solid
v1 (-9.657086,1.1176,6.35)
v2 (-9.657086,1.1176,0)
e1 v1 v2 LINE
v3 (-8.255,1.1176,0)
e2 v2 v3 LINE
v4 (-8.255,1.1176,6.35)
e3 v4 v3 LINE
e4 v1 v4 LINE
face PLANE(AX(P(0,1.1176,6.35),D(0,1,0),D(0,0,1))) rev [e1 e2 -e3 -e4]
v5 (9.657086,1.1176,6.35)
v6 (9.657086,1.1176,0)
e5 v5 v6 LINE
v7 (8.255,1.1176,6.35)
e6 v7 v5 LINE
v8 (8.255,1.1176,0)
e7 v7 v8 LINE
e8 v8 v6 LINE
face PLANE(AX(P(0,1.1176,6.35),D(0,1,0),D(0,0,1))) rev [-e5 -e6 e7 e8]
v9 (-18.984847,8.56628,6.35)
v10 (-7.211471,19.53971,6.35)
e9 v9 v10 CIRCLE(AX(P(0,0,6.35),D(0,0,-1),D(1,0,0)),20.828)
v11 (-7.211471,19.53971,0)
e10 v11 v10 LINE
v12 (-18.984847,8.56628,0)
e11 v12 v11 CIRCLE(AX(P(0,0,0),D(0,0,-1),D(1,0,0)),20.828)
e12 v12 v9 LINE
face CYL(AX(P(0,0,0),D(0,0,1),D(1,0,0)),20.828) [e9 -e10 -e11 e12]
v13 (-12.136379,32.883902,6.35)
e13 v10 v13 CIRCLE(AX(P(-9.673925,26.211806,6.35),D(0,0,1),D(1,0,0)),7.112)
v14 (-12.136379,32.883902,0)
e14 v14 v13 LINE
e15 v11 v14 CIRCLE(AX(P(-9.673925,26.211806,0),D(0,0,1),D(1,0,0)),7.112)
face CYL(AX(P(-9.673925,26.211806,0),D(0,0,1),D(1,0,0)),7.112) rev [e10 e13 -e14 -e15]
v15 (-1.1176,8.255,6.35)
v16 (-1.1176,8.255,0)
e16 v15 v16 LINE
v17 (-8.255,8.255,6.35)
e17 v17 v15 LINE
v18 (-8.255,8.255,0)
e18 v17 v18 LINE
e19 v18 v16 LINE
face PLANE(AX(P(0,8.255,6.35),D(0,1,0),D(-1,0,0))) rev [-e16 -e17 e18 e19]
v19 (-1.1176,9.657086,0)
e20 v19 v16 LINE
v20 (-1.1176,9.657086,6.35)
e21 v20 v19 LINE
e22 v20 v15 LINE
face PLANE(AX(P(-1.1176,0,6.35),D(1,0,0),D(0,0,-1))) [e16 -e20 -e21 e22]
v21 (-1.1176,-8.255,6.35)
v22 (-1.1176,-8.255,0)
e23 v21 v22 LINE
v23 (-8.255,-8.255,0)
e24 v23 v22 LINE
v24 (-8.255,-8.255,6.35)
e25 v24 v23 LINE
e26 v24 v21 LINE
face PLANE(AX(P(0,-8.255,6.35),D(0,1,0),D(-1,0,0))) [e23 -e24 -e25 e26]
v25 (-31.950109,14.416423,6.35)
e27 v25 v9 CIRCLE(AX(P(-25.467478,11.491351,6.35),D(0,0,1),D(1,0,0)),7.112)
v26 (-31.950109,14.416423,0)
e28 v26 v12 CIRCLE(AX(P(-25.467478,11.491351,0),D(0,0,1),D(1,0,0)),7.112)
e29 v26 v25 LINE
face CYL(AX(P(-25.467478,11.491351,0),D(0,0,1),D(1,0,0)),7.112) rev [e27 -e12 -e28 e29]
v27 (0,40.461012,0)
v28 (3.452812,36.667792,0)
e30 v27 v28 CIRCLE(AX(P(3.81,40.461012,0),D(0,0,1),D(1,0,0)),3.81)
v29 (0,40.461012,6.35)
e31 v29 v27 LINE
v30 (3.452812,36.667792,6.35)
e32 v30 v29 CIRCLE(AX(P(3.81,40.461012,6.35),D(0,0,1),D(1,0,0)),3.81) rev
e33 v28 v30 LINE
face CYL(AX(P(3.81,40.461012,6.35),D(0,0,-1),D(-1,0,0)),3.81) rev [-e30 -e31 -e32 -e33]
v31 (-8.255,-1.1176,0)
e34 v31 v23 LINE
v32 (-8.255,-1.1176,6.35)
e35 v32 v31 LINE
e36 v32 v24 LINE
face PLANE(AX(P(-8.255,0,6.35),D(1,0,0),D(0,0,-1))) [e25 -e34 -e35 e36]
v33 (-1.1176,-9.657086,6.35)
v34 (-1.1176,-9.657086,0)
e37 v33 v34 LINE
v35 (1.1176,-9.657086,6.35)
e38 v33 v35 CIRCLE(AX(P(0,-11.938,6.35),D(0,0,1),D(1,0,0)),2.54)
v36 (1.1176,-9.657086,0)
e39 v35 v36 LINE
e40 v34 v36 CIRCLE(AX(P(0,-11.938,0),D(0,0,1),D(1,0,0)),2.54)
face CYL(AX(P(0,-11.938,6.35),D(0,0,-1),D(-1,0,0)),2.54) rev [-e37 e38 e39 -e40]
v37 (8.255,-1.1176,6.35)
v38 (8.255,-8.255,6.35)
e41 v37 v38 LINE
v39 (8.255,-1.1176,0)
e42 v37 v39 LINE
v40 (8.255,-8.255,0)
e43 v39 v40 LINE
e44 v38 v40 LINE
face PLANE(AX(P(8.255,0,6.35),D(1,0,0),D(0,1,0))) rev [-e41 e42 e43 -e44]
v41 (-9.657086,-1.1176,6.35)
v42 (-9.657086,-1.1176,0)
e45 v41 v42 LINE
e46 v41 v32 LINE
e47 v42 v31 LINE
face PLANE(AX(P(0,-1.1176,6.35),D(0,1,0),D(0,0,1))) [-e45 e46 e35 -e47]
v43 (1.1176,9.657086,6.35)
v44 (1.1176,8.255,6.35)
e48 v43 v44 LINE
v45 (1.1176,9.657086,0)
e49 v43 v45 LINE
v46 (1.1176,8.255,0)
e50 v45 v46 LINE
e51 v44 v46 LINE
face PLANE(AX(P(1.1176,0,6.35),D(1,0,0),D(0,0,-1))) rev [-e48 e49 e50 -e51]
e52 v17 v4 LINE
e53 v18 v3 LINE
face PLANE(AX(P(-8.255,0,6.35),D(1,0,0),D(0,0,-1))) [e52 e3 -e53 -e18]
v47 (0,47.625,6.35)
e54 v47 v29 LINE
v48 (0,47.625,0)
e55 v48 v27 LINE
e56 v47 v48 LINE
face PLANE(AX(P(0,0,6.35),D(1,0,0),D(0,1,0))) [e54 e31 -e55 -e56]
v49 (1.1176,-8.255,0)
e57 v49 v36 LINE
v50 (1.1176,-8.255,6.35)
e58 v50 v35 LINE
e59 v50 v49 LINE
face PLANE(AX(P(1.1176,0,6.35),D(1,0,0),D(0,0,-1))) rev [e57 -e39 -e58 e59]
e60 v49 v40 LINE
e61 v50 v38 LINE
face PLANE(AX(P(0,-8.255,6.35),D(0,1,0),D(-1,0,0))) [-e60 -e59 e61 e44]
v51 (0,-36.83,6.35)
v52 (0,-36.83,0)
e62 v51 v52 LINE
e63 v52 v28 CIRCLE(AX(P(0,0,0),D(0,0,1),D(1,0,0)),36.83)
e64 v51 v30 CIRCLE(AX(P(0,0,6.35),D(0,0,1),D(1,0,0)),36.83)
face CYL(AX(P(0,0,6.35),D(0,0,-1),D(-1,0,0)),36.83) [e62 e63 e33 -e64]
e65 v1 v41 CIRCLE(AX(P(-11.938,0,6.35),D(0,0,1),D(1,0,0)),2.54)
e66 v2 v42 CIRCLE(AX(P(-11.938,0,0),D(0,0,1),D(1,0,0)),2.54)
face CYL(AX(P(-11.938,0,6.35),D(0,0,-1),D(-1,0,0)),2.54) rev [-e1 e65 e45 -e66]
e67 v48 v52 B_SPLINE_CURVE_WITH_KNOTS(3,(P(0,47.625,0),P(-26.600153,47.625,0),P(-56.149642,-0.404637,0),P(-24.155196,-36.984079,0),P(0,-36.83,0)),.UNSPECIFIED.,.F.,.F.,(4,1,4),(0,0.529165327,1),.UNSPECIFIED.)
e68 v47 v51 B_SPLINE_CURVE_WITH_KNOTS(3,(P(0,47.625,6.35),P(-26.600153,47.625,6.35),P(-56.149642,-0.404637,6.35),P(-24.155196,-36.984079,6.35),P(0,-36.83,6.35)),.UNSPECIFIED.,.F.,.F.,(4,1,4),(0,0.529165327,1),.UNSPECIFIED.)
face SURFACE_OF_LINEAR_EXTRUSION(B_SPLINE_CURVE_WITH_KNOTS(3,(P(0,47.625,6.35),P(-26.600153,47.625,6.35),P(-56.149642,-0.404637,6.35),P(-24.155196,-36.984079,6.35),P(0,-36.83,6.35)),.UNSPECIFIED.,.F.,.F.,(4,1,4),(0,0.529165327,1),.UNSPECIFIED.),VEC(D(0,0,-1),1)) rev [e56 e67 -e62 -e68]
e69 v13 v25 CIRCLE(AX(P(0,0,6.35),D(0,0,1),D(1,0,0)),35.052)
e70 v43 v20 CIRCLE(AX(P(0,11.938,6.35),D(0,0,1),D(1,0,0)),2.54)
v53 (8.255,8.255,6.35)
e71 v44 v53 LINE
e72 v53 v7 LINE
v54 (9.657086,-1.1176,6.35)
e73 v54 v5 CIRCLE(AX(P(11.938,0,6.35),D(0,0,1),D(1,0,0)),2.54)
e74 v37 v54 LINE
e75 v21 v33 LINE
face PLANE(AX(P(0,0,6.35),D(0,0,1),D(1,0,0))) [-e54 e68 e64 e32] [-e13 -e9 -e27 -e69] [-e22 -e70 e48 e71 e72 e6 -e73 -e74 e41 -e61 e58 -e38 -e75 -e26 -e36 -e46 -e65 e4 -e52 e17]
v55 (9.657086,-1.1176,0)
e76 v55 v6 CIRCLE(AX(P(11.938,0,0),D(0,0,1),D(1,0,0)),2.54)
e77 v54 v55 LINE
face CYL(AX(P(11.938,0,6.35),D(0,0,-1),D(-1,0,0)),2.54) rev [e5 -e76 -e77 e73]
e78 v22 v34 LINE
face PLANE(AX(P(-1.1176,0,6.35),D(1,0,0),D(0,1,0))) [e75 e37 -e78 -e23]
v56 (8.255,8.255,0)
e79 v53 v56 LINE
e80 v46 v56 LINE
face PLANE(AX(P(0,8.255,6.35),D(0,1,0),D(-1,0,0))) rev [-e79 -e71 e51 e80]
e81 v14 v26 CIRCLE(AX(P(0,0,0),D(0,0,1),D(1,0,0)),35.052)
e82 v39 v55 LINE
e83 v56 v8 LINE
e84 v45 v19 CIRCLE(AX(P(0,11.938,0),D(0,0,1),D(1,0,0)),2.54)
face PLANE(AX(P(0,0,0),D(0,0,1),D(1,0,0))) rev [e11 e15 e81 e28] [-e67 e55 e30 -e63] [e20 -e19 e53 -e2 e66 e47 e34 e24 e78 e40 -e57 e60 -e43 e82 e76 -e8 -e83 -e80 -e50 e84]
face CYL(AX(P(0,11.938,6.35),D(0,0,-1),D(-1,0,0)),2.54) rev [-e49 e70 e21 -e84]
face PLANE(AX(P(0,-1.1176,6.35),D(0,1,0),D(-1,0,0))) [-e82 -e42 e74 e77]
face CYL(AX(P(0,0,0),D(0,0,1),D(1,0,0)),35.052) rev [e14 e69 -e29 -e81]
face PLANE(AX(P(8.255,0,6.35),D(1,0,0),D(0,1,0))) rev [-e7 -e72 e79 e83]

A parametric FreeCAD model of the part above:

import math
import FreeCAD as App
import Part
import Sketcher

V = App.Vector
Q = App.Units.Quantity


def edges_at(feature, points):
    """Names of the edges that pass closest to the given points."""
    edges = feature.Shape.Edges
    near = lambda p: min(range(len(edges)), key=lambda i: edges[i].distToShape(Part.Vertex(*p))[0])
    return sorted({f"Edge{near(p) + 1}" for p in points})

doc = App.newDocument("Part")
body = doc.addObject("PartDesign::Body", "Body")

# Sketch on XY plane
sketch1 = doc.addObject("Sketcher::SketchObject", "Sketch")
body.addObject(sketch1)
sketch1.AttachmentSupport = (doc.XY_Plane, [""])
sketch1.MapMode = "FlatFace"
sketch1.addGeometry([
    Part.LineSegment(V(0, 36.83, 0), V(0, 47.625, 0)),  # 0
    Part.BSplineCurve([V(0, 47.625, 0), V(-26.600153, 47.625, 0), V(-56.149642, -0.404637, 0), V(-24.155196, -36.984079, 0), V(0, -36.83, 0)], [4, 1, 4], [0, 0.529165327, 1], False, 3, [1, 1, 1, 1, 1], False),  # 1
    Part.ArcOfCircle(Part.Circle(V(0, 0, 0), V(0, 0, 1), 36.83), math.radians(-90), math.radians(90)),  # 2
    Part.LineSegment(V(1.1176, -8.255, 0), V(1.1176, -9.657086, 0)),  # 3
    Part.ArcOfCircle(Part.Circle(V(0, -11.938, 0), V(0, 0, 1), 2.54), math.radians(116.103881), math.radians(423.896119)),  # 4
    Part.LineSegment(V(-1.1176, -9.657086, 0), V(-1.1176, -8.255, 0)),  # 5
    Part.LineSegment(V(-1.1176, -8.255, 0), V(-8.255, -8.255, 0)),  # 6
    Part.LineSegment(V(-8.255, -8.255, 0), V(-8.255, -1.1176, 0)),  # 7
    Part.LineSegment(V(-8.255, -1.1176, 0), V(-9.657086, -1.1176, 0)),  # 8
    Part.ArcOfCircle(Part.Circle(V(-11.938, 0, 0), V(0, 0, 1), 2.54), math.radians(26.103881), math.radians(333.896119)),  # 9
    Part.LineSegment(V(-9.657086, 1.1176, 0), V(-8.255, 1.1176, 0)),  # 10
    Part.LineSegment(V(-8.255, 1.1176, 0), V(-8.255, 8.255, 0)),  # 11
    Part.LineSegment(V(-8.255, 8.255, 0), V(-1.1176, 8.255, 0)),  # 12
    Part.LineSegment(V(-1.1176, 8.255, 0), V(-1.1176, 9.657086, 0)),  # 13
    Part.ArcOfCircle(Part.Circle(V(0, 11.938, 0), V(0, 0, 1), 2.54), math.radians(-63.896119), math.radians(243.896119)),  # 14
    Part.LineSegment(V(1.1176, 9.657086, 0), V(1.1176, 8.255, 0)),  # 15
    Part.LineSegment(V(1.1176, 8.255, 0), V(8.255, 8.255, 0)),  # 16
    Part.LineSegment(V(8.255, 8.255, 0), V(8.255, 1.1176, 0)),  # 17
    Part.LineSegment(V(8.255, 1.1176, 0), V(9.657086, 1.1176, 0)),  # 18
    Part.ArcOfCircle(Part.Circle(V(11.938, 0, 0), V(0, 0, 1), 2.54), math.radians(-153.896119), math.radians(153.896119)),  # 19
    Part.LineSegment(V(9.657086, -1.1176, 0), V(8.255, -1.1176, 0)),  # 20
    Part.LineSegment(V(8.255, -1.1176, 0), V(8.255, -8.255, 0)),  # 21
    Part.LineSegment(V(8.255, -8.255, 0), V(1.1176, -8.255, 0)),  # 22
], False)
sketch1.addConstraint([
    Sketcher.Constraint("Block", 1),
    Sketcher.Constraint("Coincident", 0, 2, 1, 1),
    Sketcher.Constraint("Coincident", 1, 2, 2, 1),
    Sketcher.Constraint("Coincident", 2, 2, 0, 1),
    Sketcher.Constraint("Coincident", 3, 2, 4, 2),
    Sketcher.Constraint("Coincident", 4, 1, 5, 1),
    Sketcher.Constraint("Coincident", 5, 2, 6, 1),
    Sketcher.Constraint("Coincident", 6, 2, 7, 1),
    Sketcher.Constraint("Coincident", 7, 2, 8, 1),
    Sketcher.Constraint("Coincident", 8, 2, 9, 2),
    Sketcher.Constraint("Coincident", 9, 1, 10, 1),
    Sketcher.Constraint("Coincident", 10, 2, 11, 1),
    Sketcher.Constraint("Coincident", 11, 2, 12, 1),
    Sketcher.Constraint("Coincident", 12, 2, 13, 1),
    Sketcher.Constraint("Coincident", 13, 2, 14, 2),
    Sketcher.Constraint("Coincident", 14, 1, 15, 1),
    Sketcher.Constraint("Coincident", 15, 2, 16, 1),
    Sketcher.Constraint("Coincident", 16, 2, 17, 1),
    Sketcher.Constraint("Coincident", 17, 2, 18, 1),
    Sketcher.Constraint("Coincident", 18, 2, 19, 2),
    Sketcher.Constraint("Coincident", 19, 1, 20, 1),
    Sketcher.Constraint("Coincident", 20, 2, 21, 1),
    Sketcher.Constraint("Coincident", 21, 2, 22, 1),
    Sketcher.Constraint("Coincident", 22, 2, 3, 1),
    Sketcher.Constraint("Vertical", 0),
    Sketcher.Constraint("Vertical", 3),
    Sketcher.Constraint("Vertical", 5),
    Sketcher.Constraint("Horizontal", 6),
    Sketcher.Constraint("Vertical", 7),
    Sketcher.Constraint("Horizontal", 8),
    Sketcher.Constraint("Horizontal", 10),
    Sketcher.Constraint("Vertical", 11),
    Sketcher.Constraint("Horizontal", 12),
    Sketcher.Constraint("Vertical", 13),
    Sketcher.Constraint("Vertical", 15),
    Sketcher.Constraint("Horizontal", 16),
    Sketcher.Constraint("Vertical", 17),
    Sketcher.Constraint("Horizontal", 18),
    Sketcher.Constraint("Horizontal", 20),
    Sketcher.Constraint("Vertical", 21),
    Sketcher.Constraint("Horizontal", 22),
    Sketcher.Constraint("Coincident", 2, 3, -1, 1),
    Sketcher.Constraint("Equal", 4, 9),
    Sketcher.Constraint("Equal", 9, 14),
    Sketcher.Constraint("Equal", 14, 19),
    Sketcher.Constraint("Symmetric", 4, 3, 14, 3, -1, 1),
    Sketcher.Constraint("Symmetric", 9, 3, 19, 3, -1, 1),
    Sketcher.Constraint("Symmetric", 5, 2, 15, 2, -1, 1),
    Sketcher.Constraint("Symmetric", 7, 2, 17, 2, -1, 1),
    Sketcher.Constraint("Symmetric", 10, 2, 20, 2, -1, 1),
    Sketcher.Constraint("Symmetric", 12, 2, 22, 2, -1, 1),
    Sketcher.Constraint("Symmetric", 3, 2, 4, 1, -2),
    Sketcher.Constraint("Symmetric", 11, 2, 16, 2, -2),
    Sketcher.Constraint("Symmetric", 9, 1, 18, 2, -2),
    Sketcher.Constraint("Equal", 20, 3),
    Sketcher.Constraint("Equal", 22, 7),
    Sketcher.Constraint("Radius", 4, Q("0.1 in")),
    Sketcher.Constraint("DistanceX", 6, 2, 6, 1, Q("0.281 in")),
    Sketcher.Constraint("DistanceY", 4, 3, -1, 1, Q("0.47 in")),
    Sketcher.Constraint("DistanceX", 9, 3, -1, 1, Q("0.47 in")),
    Sketcher.Constraint("DistanceX", -1, 1, 3, 2, Q("0.044 in")),
])
pad1 = doc.addObject("PartDesign::Pad", "Pad")
body.addObject(pad1)
pad1.Profile = sketch1
pad1.Length = Q("0.25 in")

# Sketch on XY plane
sketch2 = doc.addObject("Sketcher::SketchObject", "Sketch001")
body.addObject(sketch2)
sketch2.AttachmentSupport = (doc.XY_Plane, [""])
sketch2.MapMode = "FlatFace"
sketch2.AttachmentOffset = App.Placement(V(0, 0, 0.25 * 25.4), App.Rotation())
sketch2.addGeometry([
    Part.ArcOfCircle(Part.Circle(V(0, 0, 0), V(0, 0, 1), 35), math.radians(110), math.radians(156)),
    Part.ArcOfCircle(Part.Circle(V(-25, 11, 0), V(0, 0, 1), 7), math.radians(156), math.radians(336)),
    Part.ArcOfCircle(Part.Circle(V(0, 0, 0), V(0, 0, 1), 21), math.radians(110), math.radians(156)),
    Part.ArcOfCircle(Part.Circle(V(-10, 26, 0), V(0, 0, 1), 7), math.radians(-70), math.radians(110)),
], False)
sketch2.addConstraint([
    Sketcher.Constraint("Tangent", 0, 2, 1, 1),
    Sketcher.Constraint("Tangent", 1, 2, 2, 2),
    Sketcher.Constraint("Tangent", 2, 1, 3, 1),
    Sketcher.Constraint("Tangent", 3, 2, 0, 1),
    Sketcher.Constraint("Coincident", 0, 3, -1, 1),
    Sketcher.Constraint("Coincident", 2, 3, -1, 1),
    Sketcher.Constraint("Radius", 0, Q("1.38 in")),
    Sketcher.Constraint("Radius", 1, Q("0.28 in")),
    Sketcher.Constraint("DistanceX", 1, 3, 3, 2, Q("13.331099 mm")),
    Sketcher.Constraint("DistanceX", 1, 3, -1, 1, Q("25.467478 mm")),
])
pocket1 = doc.addObject("PartDesign::Pocket", "Pocket")
body.addObject(pocket1)
pocket1.Profile = sketch2
pocket1.Type = "ThroughAll"
doc.recompute()

fillet = doc.addObject("PartDesign::Fillet", "Fillet")
body.addObject(fillet)
fillet.Base = (pocket1, edges_at(pocket1, [(0, 36.83, 3.175)]))
fillet.Radius = Q("0.15 in")

doc.recompute()
